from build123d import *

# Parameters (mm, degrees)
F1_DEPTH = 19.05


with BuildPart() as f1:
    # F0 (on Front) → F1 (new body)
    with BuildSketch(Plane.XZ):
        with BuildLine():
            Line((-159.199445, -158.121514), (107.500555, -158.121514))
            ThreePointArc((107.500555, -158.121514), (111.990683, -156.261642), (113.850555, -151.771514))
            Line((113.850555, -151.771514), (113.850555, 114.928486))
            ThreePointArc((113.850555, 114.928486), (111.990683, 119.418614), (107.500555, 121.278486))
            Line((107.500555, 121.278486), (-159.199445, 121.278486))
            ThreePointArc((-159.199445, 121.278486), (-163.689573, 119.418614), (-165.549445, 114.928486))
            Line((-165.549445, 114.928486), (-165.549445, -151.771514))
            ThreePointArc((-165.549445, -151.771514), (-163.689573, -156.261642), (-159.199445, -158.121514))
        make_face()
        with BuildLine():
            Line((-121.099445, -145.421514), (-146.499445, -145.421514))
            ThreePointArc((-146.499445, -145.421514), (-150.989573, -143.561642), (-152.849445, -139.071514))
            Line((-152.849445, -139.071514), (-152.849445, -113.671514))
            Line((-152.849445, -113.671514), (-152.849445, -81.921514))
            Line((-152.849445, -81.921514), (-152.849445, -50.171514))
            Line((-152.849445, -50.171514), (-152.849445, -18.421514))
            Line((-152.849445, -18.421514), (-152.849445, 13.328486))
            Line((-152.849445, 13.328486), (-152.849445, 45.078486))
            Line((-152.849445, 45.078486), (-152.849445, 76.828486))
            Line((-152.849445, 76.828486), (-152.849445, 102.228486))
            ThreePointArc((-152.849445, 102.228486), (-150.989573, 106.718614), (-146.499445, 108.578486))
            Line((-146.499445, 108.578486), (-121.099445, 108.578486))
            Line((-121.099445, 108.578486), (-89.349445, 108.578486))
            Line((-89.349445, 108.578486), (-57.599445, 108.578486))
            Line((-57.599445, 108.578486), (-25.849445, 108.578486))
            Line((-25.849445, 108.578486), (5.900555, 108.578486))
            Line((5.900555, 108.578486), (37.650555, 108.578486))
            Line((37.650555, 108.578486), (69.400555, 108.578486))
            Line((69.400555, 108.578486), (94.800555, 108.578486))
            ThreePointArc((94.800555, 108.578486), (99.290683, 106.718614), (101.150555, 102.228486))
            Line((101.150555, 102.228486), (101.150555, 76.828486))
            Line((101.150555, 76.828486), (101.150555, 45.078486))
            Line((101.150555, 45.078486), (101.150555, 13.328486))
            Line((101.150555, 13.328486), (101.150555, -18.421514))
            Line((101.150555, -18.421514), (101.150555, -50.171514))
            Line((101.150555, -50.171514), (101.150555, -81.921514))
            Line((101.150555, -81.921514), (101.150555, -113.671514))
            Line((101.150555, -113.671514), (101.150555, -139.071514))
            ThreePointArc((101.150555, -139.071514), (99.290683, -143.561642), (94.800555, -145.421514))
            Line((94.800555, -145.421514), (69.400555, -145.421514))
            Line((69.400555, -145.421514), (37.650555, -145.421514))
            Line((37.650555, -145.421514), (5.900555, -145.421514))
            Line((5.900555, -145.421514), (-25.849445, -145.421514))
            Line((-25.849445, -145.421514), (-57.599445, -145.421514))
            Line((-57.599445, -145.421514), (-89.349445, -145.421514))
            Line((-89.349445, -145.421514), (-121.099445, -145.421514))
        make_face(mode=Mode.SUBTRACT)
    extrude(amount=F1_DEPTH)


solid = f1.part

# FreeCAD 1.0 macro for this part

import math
import FreeCAD as App
import Part
import Sketcher

V = App.Vector
Q = App.Units.Quantity

doc = App.newDocument("Part")
body = doc.addObject("PartDesign::Body", "Body")

sketch1 = doc.addObject("Sketcher::SketchObject", "Sketch")
body.addObject(sketch1)
sketch1.AttachmentSupport = (doc.XZ_Plane, [""])
sketch1.MapMode = "FlatFace"
sketch1.addGeometry([
    Part.LineSegment(V(-159, -158, 0), V(108, -158, 0)),
    Part.ArcOfCircle(Part.Circle(V(108, -152, 0), V(0, 0, 1), 6), math.radians(-90), math.radians(0)),
    Part.LineSegment(V(114, -152, 0), V(114, 115, 0)),
    Part.ArcOfCircle(Part.Circle(V(108, 115, 0), V(0, 0, 1), 6), math.radians(0), math.radians(90)),
    Part.LineSegment(V(108, 121, 0), V(-159, 121, 0)),
    Part.ArcOfCircle(Part.Circle(V(-159, 115, 0), V(0, 0, 1), 6), math.radians(90), math.radians(180)),
    Part.LineSegment(V(-166, 115, 0), V(-166, -152, 0)),
    Part.ArcOfCircle(Part.Circle(V(-159, -152, 0), V(0, 0, 1), 6), math.radians(-180), math.radians(-90)),
    Part.LineSegment(V(95, -145, 0), V(-146, -145, 0)),
    Part.ArcOfCircle(Part.Circle(V(-146, -139, 0), V(0, 0, 1), 6), math.radians(-180), math.radians(-90)),
    Part.LineSegment(V(-153, -139, 0), V(-153, 102, 0)),
    Part.ArcOfCircle(Part.Circle(V(-146, 102, 0), V(0, 0, 1), 6), math.radians(90), math.radians(180)),
    Part.LineSegment(V(-146, 109, 0), V(95, 109, 0)),
    Part.ArcOfCircle(Part.Circle(V(95, 102, 0), V(0, 0, 1), 6), math.radians(0), math.radians(90)),
    Part.LineSegment(V(101, 102, 0), V(101, -139, 0)),
    Part.ArcOfCircle(Part.Circle(V(95, -139, 0), V(0, 0, 1), 6), math.radians(-90), math.radians(0)),
], False)
sketch1.addConstraint([
    Sketcher.Constraint("Tangent", 0, 2, 1, 1),
    Sketcher.Constraint("Tangent", 1, 2, 2, 1),
    Sketcher.Constraint("Tangent", 2, 2, 3, 1),
    Sketcher.Constraint("Tangent", 3, 2, 4, 1),
    Sketcher.Constraint("Tangent", 4, 2, 5, 1),
    Sketcher.Constraint("Tangent", 5, 2, 6, 1),
    Sketcher.Constraint("Tangent", 6, 2, 7, 1),
    Sketcher.Constraint("Tangent", 7, 2, 0, 1),
    Sketcher.Constraint("Tangent", 8, 2, 9, 2),
    Sketcher.Constraint("Tangent", 9, 1, 10, 1),
    Sketcher.Constraint("Tangent", 10, 2, 11, 2),
    Sketcher.Constraint("Tangent", 11, 1, 12, 1),
    Sketcher.Constraint("Tangent", 12, 2, 13, 2),
    Sketcher.Constraint("Tangent", 13, 1, 14, 1),
    Sketcher.Constraint("Tangent", 14, 2, 15, 2),
    Sketcher.Constraint("Tangent", 15, 1, 8, 1),
    Sketcher.Constraint("Horizontal", 0),
    Sketcher.Constraint("Vertical", 2),
    Sketcher.Constraint("Horizontal", 4),
    Sketcher.Constraint("Vertical", 6),
    Sketcher.Constraint("Horizontal", 8),
    Sketcher.Constraint("Vertical", 10),
    Sketcher.Constraint("Horizontal", 12),
    Sketcher.Constraint("Vertical", 14),
    Sketcher.Constraint("Equal", 1, 3),
    Sketcher.Constraint("Equal", 3, 5),
    Sketcher.Constraint("Equal", 5, 7),
    Sketcher.Constraint("Equal", 7, 9),
    Sketcher.Constraint("Equal", 9, 11),
    Sketcher.Constraint("Equal", 11, 13),
    Sketcher.Constraint("Equal", 13, 15),
    Sketcher.Constraint("Equal", 4, 2),
    Sketcher.Constraint("Equal", 12, 10),
    Sketcher.Constraint("Radius", 1, Q("0.25 in")),
    Sketcher.Constraint("DistanceX", 0, 1, 0, 2, Q("10.5 in")),
    Sketcher.Constraint("DistanceX", 8, 2, 8, 1, Q("9.5 in")),
    Sketcher.Constraint("DistanceX", 9, 3, 1, 3, Q("10 in")),
    Sketcher.Constraint("DistanceY", 9, 3, 5, 3, Q("10 in")),
    Sketcher.Constraint("DistanceX", -1, 1, 1, 3, Q("107.500555 mm")),
    Sketcher.Constraint("DistanceY", 1, 3, -1, 1, Q("151.771514 mm")),
])
pad1 = doc.addObject("PartDesign::Pad", "Pad")
body.addObject(pad1)
pad1.Profile = sketch1
pad1.Length = Q("0.75 in")

doc.recompute()
